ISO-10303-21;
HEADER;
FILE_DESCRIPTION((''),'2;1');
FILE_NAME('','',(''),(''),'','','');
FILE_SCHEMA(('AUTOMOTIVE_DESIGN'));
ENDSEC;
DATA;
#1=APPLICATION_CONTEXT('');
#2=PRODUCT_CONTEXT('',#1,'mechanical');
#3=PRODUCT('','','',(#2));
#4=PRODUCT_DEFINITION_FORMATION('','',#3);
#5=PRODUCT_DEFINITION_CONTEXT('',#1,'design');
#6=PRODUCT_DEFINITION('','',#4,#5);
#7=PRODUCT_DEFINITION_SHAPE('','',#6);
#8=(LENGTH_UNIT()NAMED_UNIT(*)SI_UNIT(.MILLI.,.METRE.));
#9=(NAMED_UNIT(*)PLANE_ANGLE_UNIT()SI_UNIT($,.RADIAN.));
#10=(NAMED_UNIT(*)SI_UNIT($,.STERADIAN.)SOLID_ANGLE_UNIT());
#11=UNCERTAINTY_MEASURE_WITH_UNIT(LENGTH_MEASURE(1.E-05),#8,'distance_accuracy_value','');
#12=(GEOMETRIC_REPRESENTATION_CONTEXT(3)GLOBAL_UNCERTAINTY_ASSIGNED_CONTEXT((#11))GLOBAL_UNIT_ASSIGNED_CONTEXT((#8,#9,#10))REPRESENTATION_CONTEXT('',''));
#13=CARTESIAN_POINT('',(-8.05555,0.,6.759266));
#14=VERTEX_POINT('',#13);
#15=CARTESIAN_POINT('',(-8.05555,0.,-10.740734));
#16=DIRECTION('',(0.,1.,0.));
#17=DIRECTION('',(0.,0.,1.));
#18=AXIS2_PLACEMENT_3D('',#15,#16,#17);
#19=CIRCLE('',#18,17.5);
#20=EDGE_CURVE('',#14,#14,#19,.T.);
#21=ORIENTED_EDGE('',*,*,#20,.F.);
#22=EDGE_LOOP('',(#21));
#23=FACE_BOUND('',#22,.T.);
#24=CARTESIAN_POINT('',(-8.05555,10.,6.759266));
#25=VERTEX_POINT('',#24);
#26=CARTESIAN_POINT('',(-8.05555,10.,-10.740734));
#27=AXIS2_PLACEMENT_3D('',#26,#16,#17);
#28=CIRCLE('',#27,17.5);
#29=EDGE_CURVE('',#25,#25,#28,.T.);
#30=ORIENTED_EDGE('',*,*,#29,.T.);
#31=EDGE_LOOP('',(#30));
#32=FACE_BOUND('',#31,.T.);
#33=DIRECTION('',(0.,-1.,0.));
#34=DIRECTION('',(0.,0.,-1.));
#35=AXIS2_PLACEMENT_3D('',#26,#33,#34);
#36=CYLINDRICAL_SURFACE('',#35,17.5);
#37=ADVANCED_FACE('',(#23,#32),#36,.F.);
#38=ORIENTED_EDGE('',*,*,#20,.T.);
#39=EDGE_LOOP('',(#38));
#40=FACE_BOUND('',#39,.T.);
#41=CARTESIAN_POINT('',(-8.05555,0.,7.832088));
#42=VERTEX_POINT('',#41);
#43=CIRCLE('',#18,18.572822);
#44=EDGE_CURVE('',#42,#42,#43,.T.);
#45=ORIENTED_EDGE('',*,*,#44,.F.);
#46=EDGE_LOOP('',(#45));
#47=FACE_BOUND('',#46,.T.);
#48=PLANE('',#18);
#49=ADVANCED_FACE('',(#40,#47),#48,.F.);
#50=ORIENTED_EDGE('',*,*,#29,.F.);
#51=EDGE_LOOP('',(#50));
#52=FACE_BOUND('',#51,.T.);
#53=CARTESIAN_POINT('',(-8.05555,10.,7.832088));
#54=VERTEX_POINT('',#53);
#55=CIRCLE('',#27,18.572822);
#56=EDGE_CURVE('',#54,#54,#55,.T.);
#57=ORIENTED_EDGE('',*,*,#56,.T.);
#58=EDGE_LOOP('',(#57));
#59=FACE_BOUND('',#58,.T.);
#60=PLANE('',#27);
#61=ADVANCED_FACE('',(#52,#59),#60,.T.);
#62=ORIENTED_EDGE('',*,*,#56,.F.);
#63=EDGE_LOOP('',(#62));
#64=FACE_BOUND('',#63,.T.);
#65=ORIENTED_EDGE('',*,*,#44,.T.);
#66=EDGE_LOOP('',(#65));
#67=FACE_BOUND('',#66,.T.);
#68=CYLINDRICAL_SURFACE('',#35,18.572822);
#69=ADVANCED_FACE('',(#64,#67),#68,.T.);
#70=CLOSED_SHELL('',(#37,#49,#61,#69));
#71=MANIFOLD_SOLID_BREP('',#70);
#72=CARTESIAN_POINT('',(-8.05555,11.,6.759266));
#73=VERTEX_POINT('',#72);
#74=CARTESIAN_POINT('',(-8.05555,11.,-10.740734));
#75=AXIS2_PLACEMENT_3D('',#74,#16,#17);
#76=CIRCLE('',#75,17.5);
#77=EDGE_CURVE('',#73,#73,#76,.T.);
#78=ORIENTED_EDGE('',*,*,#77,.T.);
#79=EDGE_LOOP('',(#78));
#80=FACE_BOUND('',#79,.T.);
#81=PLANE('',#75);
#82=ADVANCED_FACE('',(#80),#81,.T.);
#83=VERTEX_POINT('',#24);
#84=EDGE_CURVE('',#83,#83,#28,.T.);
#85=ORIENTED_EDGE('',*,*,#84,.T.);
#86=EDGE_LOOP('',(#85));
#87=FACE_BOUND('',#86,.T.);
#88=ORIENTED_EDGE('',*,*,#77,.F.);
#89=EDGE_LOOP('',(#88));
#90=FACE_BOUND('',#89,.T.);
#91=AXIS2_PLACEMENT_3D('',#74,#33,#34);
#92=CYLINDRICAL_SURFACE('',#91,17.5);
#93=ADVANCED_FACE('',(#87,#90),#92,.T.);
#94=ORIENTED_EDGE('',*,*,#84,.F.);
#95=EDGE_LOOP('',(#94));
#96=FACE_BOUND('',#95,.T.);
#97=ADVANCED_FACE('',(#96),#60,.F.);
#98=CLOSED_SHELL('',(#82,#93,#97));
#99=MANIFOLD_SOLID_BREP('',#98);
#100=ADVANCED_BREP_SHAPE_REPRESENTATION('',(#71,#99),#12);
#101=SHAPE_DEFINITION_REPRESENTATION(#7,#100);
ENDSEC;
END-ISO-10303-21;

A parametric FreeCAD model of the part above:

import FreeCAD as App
import Part
import Sketcher
from FreeCAD import Vector

doc = App.newDocument("Part")
body = doc.addObject("PartDesign::Body", "Body")

# Sketch on XZ plane
sketch1 = body.newObject("Sketcher::SketchObject", "Sketch")
sketch1.AttachmentSupport = (doc.getObject("XZ_Plane"), [""])
sketch1.MapMode = "FlatFace"
sketch1.addGeometry([
    Part.Circle(Vector(-8, -11, 0), Vector(0, 0, 1), 19),
    Part.Circle(Vector(-8, -11, 0), Vector(0, 0, 1), 18),
], False)
sketch1.addConstraint([
    Sketcher.Constraint("Coincident", 1, 3, 0, 3),
    Sketcher.Constraint("Diameter", 1, 35.0),
    Sketcher.Constraint("Diameter", 0, 37.145643),
    Sketcher.Constraint("DistanceX", 0, 3, -1, 1, 8.05555),
    Sketcher.Constraint("DistanceY", 0, 3, -1, 1, 10.740734),
])
pad1 = body.newObject("PartDesign::Pad", "Pad")
pad1.Profile = sketch1
pad1.Length = 10
pad1.Reversed = True
body2 = doc.addObject("PartDesign::Body", "Body001")

# Sketch on XZ plane
sketch2 = body2.newObject("Sketcher::SketchObject", "Sketch001")
sketch2.AttachmentSupport = (doc.getObject("XZ_Plane001"), [""])
sketch2.MapMode = "FlatFace"
sketch2.AttachmentOffset = App.Placement(Vector(0, 0, -10), App.Rotation())
sketch2.addGeometry(Part.Circle(Vector(-8, -11, 0), Vector(0, 0, 1), 18), False)
sketch2.addConstraint([
    Sketcher.Constraint("Diameter", 0, 35.0),
    Sketcher.Constraint("DistanceX", 0, 3, -1, 1, 8.05555),
    Sketcher.Constraint("DistanceY", 0, 3, -1, 1, 10.740734),
])
pad2 = body2.newObject("PartDesign::Pad", "Pad001")
pad2.Profile = sketch2
pad2.Length = 1
pad2.Reversed = True

doc.recompute()
